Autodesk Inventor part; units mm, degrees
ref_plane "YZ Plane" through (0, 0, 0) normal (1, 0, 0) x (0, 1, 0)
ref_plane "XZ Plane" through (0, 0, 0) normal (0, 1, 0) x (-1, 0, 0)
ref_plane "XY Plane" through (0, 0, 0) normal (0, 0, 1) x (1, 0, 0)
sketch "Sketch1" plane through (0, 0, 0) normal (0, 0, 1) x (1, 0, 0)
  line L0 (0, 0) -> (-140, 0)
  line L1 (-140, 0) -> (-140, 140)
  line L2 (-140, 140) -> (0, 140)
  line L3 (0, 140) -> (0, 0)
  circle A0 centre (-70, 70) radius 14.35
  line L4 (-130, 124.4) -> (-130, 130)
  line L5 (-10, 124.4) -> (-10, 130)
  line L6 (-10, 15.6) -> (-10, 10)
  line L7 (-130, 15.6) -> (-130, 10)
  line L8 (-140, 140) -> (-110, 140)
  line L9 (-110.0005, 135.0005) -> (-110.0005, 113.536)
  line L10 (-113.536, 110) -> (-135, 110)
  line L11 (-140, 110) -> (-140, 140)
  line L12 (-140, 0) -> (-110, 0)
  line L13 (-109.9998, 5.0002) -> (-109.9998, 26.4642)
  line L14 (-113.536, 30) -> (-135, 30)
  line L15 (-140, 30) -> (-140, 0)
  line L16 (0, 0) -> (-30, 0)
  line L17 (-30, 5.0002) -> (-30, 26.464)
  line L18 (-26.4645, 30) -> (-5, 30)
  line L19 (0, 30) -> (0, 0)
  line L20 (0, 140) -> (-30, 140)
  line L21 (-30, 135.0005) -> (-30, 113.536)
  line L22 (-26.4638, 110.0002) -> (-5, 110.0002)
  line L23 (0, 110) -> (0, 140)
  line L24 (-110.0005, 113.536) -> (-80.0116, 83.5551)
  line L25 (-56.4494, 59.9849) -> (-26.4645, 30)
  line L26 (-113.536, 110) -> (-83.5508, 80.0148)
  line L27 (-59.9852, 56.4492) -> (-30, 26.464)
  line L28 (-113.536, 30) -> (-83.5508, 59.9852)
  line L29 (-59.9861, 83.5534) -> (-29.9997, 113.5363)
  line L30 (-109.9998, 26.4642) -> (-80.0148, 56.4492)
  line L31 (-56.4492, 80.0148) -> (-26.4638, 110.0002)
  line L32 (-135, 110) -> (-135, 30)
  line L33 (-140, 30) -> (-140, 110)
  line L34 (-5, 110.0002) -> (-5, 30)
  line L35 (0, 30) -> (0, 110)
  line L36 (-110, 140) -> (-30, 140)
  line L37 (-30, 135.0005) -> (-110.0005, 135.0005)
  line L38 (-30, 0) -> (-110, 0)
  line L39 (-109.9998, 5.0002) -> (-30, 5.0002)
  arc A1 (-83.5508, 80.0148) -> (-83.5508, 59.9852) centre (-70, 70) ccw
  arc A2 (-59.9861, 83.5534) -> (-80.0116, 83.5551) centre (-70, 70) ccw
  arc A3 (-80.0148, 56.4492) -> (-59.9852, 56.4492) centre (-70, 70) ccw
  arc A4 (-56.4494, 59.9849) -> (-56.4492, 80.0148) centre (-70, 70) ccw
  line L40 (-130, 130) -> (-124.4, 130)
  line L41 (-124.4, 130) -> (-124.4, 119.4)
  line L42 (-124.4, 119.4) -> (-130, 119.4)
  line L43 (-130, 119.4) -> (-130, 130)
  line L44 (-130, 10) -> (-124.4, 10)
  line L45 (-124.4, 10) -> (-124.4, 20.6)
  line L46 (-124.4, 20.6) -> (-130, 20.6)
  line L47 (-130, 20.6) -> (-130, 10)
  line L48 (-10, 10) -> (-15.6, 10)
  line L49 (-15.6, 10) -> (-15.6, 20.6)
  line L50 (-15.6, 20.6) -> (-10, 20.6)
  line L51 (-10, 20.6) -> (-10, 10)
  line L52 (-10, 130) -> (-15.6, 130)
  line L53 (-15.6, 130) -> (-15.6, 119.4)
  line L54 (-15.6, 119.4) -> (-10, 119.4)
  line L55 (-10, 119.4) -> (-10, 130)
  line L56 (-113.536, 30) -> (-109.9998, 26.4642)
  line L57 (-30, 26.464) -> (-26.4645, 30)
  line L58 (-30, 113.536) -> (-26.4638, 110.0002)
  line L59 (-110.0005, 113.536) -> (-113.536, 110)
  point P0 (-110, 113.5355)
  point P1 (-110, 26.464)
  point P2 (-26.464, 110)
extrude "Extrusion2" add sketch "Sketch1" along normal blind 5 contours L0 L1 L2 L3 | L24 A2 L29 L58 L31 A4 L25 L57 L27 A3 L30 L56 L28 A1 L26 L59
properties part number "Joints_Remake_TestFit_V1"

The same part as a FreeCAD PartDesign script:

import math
import FreeCAD as App
import Part
import Sketcher
Q = App.Units.Quantity

doc = App.newDocument("Part")
body = doc.addObject("PartDesign::Body", "Body")

sketch1 = doc.addObject("Sketcher::SketchObject", "Sketch")
body.addObject(sketch1)
sketch1.AttachmentSupport = (doc.XY_Plane, [""])
sketch1.MapMode = "FlatFace"
sketch1.addGeometry([
    Part.LineSegment(App.Vector(0, 0, 0), App.Vector(0, 140, 0)),
    Part.LineSegment(App.Vector(0, 140, 0), App.Vector(-140, 140, 0)),
    Part.LineSegment(App.Vector(-140, 140, 0), App.Vector(-140, 0, 0)),
    Part.LineSegment(App.Vector(-140, 0, 0), App.Vector(0, 0, 0)),
    Part.LineSegment(App.Vector(-130, 10, 0), App.Vector(-130, 20.6, 0)),
    Part.LineSegment(App.Vector(-130, 20.6, 0), App.Vector(-124.4, 20.6, 0)),
    Part.LineSegment(App.Vector(-124.4, 20.6, 0), App.Vector(-124.4, 10, 0)),
    Part.LineSegment(App.Vector(-124.4, 10, 0), App.Vector(-130, 10, 0)),
    Part.LineSegment(App.Vector(-10, 20.6, 0), App.Vector(-10, 10, 0)),
    Part.LineSegment(App.Vector(-10, 10, 0), App.Vector(-15.6, 10, 0)),
    Part.LineSegment(App.Vector(-15.6, 10, 0), App.Vector(-15.6, 20.6, 0)),
    Part.LineSegment(App.Vector(-15.6, 20.6, 0), App.Vector(-10, 20.6, 0)),
    Part.LineSegment(App.Vector(-130, 119.4, 0), App.Vector(-130, 130, 0)),
    Part.LineSegment(App.Vector(-130, 130, 0), App.Vector(-124.4, 130, 0)),
    Part.LineSegment(App.Vector(-124.4, 130, 0), App.Vector(-124.4, 119.4, 0)),
    Part.LineSegment(App.Vector(-124.4, 119.4, 0), App.Vector(-130, 119.4, 0)),
    Part.LineSegment(App.Vector(-110.0005, 113.536, 0), App.Vector(-110.0005, 135.0005, 0)),
    Part.LineSegment(App.Vector(-110.0005, 135.0005, 0), App.Vector(-30, 135.0005, 0)),
    Part.LineSegment(App.Vector(-30, 135.0005, 0), App.Vector(-30, 113.536, 0)),
    Part.LineSegment(App.Vector(-30, 113.536, 0), App.Vector(-59.9861, 83.5534, 0)),
    Part.ArcOfCircle(Part.Circle(App.Vector(-70, 70, 0), App.Vector(0, 0, 1), 16.851494), math.radians(53.541239), math.radians(126.449037)),
    Part.LineSegment(App.Vector(-80.0116, 83.5551, 0), App.Vector(-110.0005, 113.536, 0)),
    Part.LineSegment(App.Vector(-135, 110, 0), App.Vector(-113.536, 110, 0)),
    Part.LineSegment(App.Vector(-113.536, 110, 0), App.Vector(-83.5508, 80.0148, 0)),
    Part.ArcOfCircle(Part.Circle(App.Vector(-70, 70, 0), App.Vector(0, 0, 1), 16.849938), math.radians(143.533524), math.radians(216.466476)),
    Part.LineSegment(App.Vector(-83.5508, 59.9852, 0), App.Vector(-113.536, 30, 0)),
    Part.LineSegment(App.Vector(-113.536, 30, 0), App.Vector(-135, 30, 0)),
    Part.LineSegment(App.Vector(-135, 30, 0), App.Vector(-135, 110, 0)),
    Part.LineSegment(App.Vector(-109.9998, 5.0002, 0), App.Vector(-109.9998, 26.4642, 0)),
    Part.LineSegment(App.Vector(-109.9998, 26.4642, 0), App.Vector(-80.0148, 56.4492, 0)),
    Part.ArcOfCircle(Part.Circle(App.Vector(-70, 70, 0), App.Vector(0, 0, 1), 16.849938), math.radians(-126.466476), math.radians(-53.533524)),
    Part.LineSegment(App.Vector(-59.9852, 56.4492, 0), App.Vector(-30, 26.464, 0)),
    Part.LineSegment(App.Vector(-30, 26.464, 0), App.Vector(-30, 5.0002, 0)),
    Part.LineSegment(App.Vector(-30, 5.0002, 0), App.Vector(-109.9998, 5.0002, 0)),
    Part.LineSegment(App.Vector(-5, 30, 0), App.Vector(-26.4645, 30, 0)),
    Part.LineSegment(App.Vector(-26.4645, 30, 0), App.Vector(-56.4494, 59.9849, 0)),
    Part.ArcOfCircle(Part.Circle(App.Vector(-70, 70, 0), App.Vector(0, 0, 1), 16.849938), math.radians(-36.467701), math.radians(36.466476)),
    Part.LineSegment(App.Vector(-56.4492, 80.0148, 0), App.Vector(-26.4638, 110.0002, 0)),
    Part.LineSegment(App.Vector(-26.4638, 110.0002, 0), App.Vector(-5, 110.0002, 0)),
    Part.LineSegment(App.Vector(-5, 110.0002, 0), App.Vector(-5, 30, 0)),
    Part.LineSegment(App.Vector(-10, 130, 0), App.Vector(-10, 119.4, 0)),
    Part.LineSegment(App.Vector(-10, 119.4, 0), App.Vector(-15.6, 119.4, 0)),
    Part.LineSegment(App.Vector(-15.6, 119.4, 0), App.Vector(-15.6, 130, 0)),
    Part.LineSegment(App.Vector(-15.6, 130, 0), App.Vector(-10, 130, 0)),
    Part.Circle(App.Vector(-70, 70, 0), App.Vector(0, 0, 1), 14.35),
], False)
sketch1.addConstraint([
    Sketcher.Constraint("Coincident", 0, 2, 1, 1),
    Sketcher.Constraint("Coincident", 1, 2, 2, 1),
    Sketcher.Constraint("Coincident", 2, 2, 3, 1),
    Sketcher.Constraint("Coincident", 3, 2, 0, 1),
    Sketcher.Constraint("Coincident", 4, 2, 5, 1),
    Sketcher.Constraint("Coincident", 5, 2, 6, 1),
    Sketcher.Constraint("Coincident", 6, 2, 7, 1),
    Sketcher.Constraint("Coincident", 7, 2, 4, 1),
    Sketcher.Constraint("Coincident", 8, 2, 9, 1),
    Sketcher.Constraint("Coincident", 9, 2, 10, 1),
    Sketcher.Constraint("Coincident", 10, 2, 11, 1),
    Sketcher.Constraint("Coincident", 11, 2, 8, 1),
    Sketcher.Constraint("Coincident", 12, 2, 13, 1),
    Sketcher.Constraint("Coincident", 13, 2, 14, 1),
    Sketcher.Constraint("Coincident", 14, 2, 15, 1),
    Sketcher.Constraint("Coincident", 15, 2, 12, 1),
    Sketcher.Constraint("Coincident", 16, 2, 17, 1),
    Sketcher.Constraint("Coincident", 17, 2, 18, 1),
    Sketcher.Constraint("Coincident", 18, 2, 19, 1),
    Sketcher.Constraint("Coincident", 19, 2, 20, 1),
    Sketcher.Constraint("Coincident", 20, 2, 21, 1),
    Sketcher.Constraint("Coincident", 21, 2, 16, 1),
    Sketcher.Constraint("Coincident", 22, 2, 23, 1),
    Sketcher.Constraint("Coincident", 23, 2, 24, 1),
    Sketcher.Constraint("Coincident", 24, 2, 25, 1),
    Sketcher.Constraint("Coincident", 25, 2, 26, 1),
    Sketcher.Constraint("Coincident", 26, 2, 27, 1),
    Sketcher.Constraint("Coincident", 27, 2, 22, 1),
    Sketcher.Constraint("Coincident", 28, 2, 29, 1),
    Sketcher.Constraint("Coincident", 29, 2, 30, 1),
    Sketcher.Constraint("Coincident", 30, 2, 31, 1),
    Sketcher.Constraint("Coincident", 31, 2, 32, 1),
    Sketcher.Constraint("Coincident", 32, 2, 33, 1),
    Sketcher.Constraint("Coincident", 33, 2, 28, 1),
    Sketcher.Constraint("Coincident", 34, 2, 35, 1),
    Sketcher.Constraint("Coincident", 35, 2, 36, 1),
    Sketcher.Constraint("Coincident", 36, 2, 37, 1),
    Sketcher.Constraint("Coincident", 37, 2, 38, 1),
    Sketcher.Constraint("Coincident", 38, 2, 39, 1),
    Sketcher.Constraint("Coincident", 39, 2, 34, 1),
    Sketcher.Constraint("Coincident", 40, 2, 41, 1),
    Sketcher.Constraint("Coincident", 41, 2, 42, 1),
    Sketcher.Constraint("Coincident", 42, 2, 43, 1),
    Sketcher.Constraint("Coincident", 43, 2, 40, 1),
    Sketcher.Constraint("Vertical", 0),
    Sketcher.Constraint("Horizontal", 1),
    Sketcher.Constraint("Vertical", 2),
    Sketcher.Constraint("Horizontal", 3),
    Sketcher.Constraint("Vertical", 4),
    Sketcher.Constraint("Horizontal", 5),
    Sketcher.Constraint("Vertical", 6),
    Sketcher.Constraint("Horizontal", 7),
    Sketcher.Constraint("Vertical", 8),
    Sketcher.Constraint("Horizontal", 9),
    Sketcher.Constraint("Vertical", 10),
    Sketcher.Constraint("Horizontal", 11),
    Sketcher.Constraint("Vertical", 12),
    Sketcher.Constraint("Horizontal", 13),
    Sketcher.Constraint("Vertical", 14),
    Sketcher.Constraint("Horizontal", 15),
    Sketcher.Constraint("Vertical", 16),
    Sketcher.Constraint("Horizontal", 17),
    Sketcher.Constraint("Vertical", 18),
    Sketcher.Constraint("Horizontal", 22),
    Sketcher.Constraint("Horizontal", 26),
    Sketcher.Constraint("Vertical", 27),
    Sketcher.Constraint("Vertical", 28),
    Sketcher.Constraint("Vertical", 32),
    Sketcher.Constraint("Horizontal", 33),
    Sketcher.Constraint("Horizontal", 34),
    Sketcher.Constraint("Horizontal", 38),
    Sketcher.Constraint("Vertical", 39),
    Sketcher.Constraint("Vertical", 40),
    Sketcher.Constraint("Horizontal", 41),
    Sketcher.Constraint("Vertical", 42),
    Sketcher.Constraint("Horizontal", 43),
    Sketcher.Constraint("Coincident", 3, 2, -1, 1),
    Sketcher.Constraint("Coincident", 24, 3, 20, 3),
    Sketcher.Constraint("Coincident", 30, 3, 20, 3),
    Sketcher.Constraint("Coincident", 36, 3, 20, 3),
    Sketcher.Constraint("Coincident", 44, 3, 20, 3),
    Sketcher.Constraint("Diameter", 44, Q("28.7 mm")),
    Sketcher.Constraint("DistanceX", 1, 2, 1, 1, Q("140 mm")),
    Sketcher.Constraint("DistanceY", 0, 1, 0, 2, Q("140 mm")),
    Sketcher.Constraint("DistanceY", 27, 1, 27, 2, Q("80 mm")),
    Sketcher.Constraint("Radius", 24, Q("16.85 mm")),
    Sketcher.Constraint("Radius", 30, Q("16.85 mm")),
    Sketcher.Constraint("Radius", 36, Q("16.85 mm")),
    Sketcher.Constraint("DistanceX", 5, 1, 5, 2, Q("5.6 mm")),
    Sketcher.Constraint("DistanceX", 9, 2, 9, 1, Q("5.6 mm")),
    Sketcher.Constraint("DistanceX", 13, 1, 13, 2, Q("5.6 mm")),
    Sketcher.Constraint("DistanceX", 41, 2, 41, 1, Q("5.6 mm")),
    Sketcher.Constraint("DistanceY", 4, 1, 4, 2, Q("10.6 mm")),
    Sketcher.Constraint("DistanceY", 8, 2, 8, 1, Q("10.6 mm")),
    Sketcher.Constraint("DistanceY", 12, 1, 12, 2, Q("10.6 mm")),
    Sketcher.Constraint("DistanceY", 40, 2, 40, 1, Q("10.6 mm")),
    Sketcher.Constraint("DistanceX", 20, 3, -1, 1, Q("70 mm")),
    Sketcher.Constraint("DistanceY", -1, 1, 20, 3, Q("70 mm")),
    Sketcher.Constraint("DistanceX", 4, 2, -1, 1, Q("130 mm")),
    Sketcher.Constraint("DistanceY", -1, 1, 6, 2, Q("10 mm")),
    Sketcher.Constraint("DistanceX", 8, 2, -1, 1, Q("10 mm")),
    Sketcher.Constraint("DistanceY", -1, 1, 8, 2, Q("10 mm")),
    Sketcher.Constraint("DistanceX", 12, 2, -1, 1, Q("130 mm")),
    Sketcher.Constraint("DistanceY", -1, 1, 12, 2, Q("130 mm")),
    Sketcher.Constraint("DistanceX", 17, 2, -1, 1, Q("30 mm")),
    Sketcher.Constraint("DistanceY", -1, 1, 22, 2, Q("110 mm")),
    Sketcher.Constraint("DistanceX", 26, 2, -1, 1, Q("135 mm")),
    Sketcher.Constraint("DistanceX", 31, 2, -1, 1, Q("30 mm")),
    Sketcher.Constraint("DistanceY", -1, 1, 34, 2, Q("30 mm")),
    Sketcher.Constraint("DistanceX", 38, 2, -1, 1, Q("5 mm")),
    Sketcher.Constraint("DistanceX", 40, 2, -1, 1, Q("10 mm")),
    Sketcher.Constraint("DistanceY", -1, 1, 42, 2, Q("130 mm")),
    Sketcher.Constraint("Radius", 20, Q("16.8515 mm")),
    Sketcher.Constraint("DistanceX", 22, 1, 22, 2, Q("21.464 mm")),
    Sketcher.Constraint("DistanceX", 26, 2, 26, 1, Q("21.464 mm")),
    Sketcher.Constraint("DistanceY", 28, 1, 28, 2, Q("21.464 mm")),
    Sketcher.Constraint("Distance", 21, Q("42.405 mm")),
    Sketcher.Constraint("Distance", 35, Q("42.405 mm")),
    Sketcher.Constraint("DistanceX", 17, 1, 17, 2, Q("80.0005 mm")),
    Sketcher.Constraint("DistanceX", 33, 2, 33, 1, Q("79.9998 mm")),
    Sketcher.Constraint("DistanceX", 34, 2, 34, 1, Q("21.4645 mm")),
    Sketcher.Constraint("DistanceX", 38, 1, 38, 2, Q("21.4638 mm")),
    Sketcher.Constraint("DistanceY", 16, 1, 16, 2, Q("21.4645 mm")),
    Sketcher.Constraint("DistanceY", 18, 2, 18, 1, Q("21.4645 mm")),
    Sketcher.Constraint("DistanceY", 32, 2, 32, 1, Q("21.4638 mm")),
    Sketcher.Constraint("DistanceY", 39, 2, 39, 1, Q("80.0002 mm")),
    Sketcher.Constraint("DistanceY", -1, 1, 18, 2, Q("113.536 mm")),
    Sketcher.Constraint("DistanceX", 19, 2, -1, 1, Q("59.986 mm")),
    Sketcher.Constraint("DistanceY", -1, 1, 31, 2, Q("26.464 mm")),
    Sketcher.Constraint("DistanceX", 24, 2, 29, 2, Q("3.536 mm")),
    Sketcher.Constraint("DistanceY", 29, 2, 24, 2, Q("3.536 mm")),
    Sketcher.Constraint("DistanceX", 19, 2, 36, 2, Q("3.537 mm")),
    Sketcher.Constraint("Distance", 23, Q("42.4055 mm")),
    Sketcher.Constraint("Distance", 31, Q("42.4055 mm")),
])
pad1 = doc.addObject("PartDesign::Pad", "Pad")
body.addObject(pad1)
pad1.Profile = sketch1
pad1.Length = 5

doc.recompute()
